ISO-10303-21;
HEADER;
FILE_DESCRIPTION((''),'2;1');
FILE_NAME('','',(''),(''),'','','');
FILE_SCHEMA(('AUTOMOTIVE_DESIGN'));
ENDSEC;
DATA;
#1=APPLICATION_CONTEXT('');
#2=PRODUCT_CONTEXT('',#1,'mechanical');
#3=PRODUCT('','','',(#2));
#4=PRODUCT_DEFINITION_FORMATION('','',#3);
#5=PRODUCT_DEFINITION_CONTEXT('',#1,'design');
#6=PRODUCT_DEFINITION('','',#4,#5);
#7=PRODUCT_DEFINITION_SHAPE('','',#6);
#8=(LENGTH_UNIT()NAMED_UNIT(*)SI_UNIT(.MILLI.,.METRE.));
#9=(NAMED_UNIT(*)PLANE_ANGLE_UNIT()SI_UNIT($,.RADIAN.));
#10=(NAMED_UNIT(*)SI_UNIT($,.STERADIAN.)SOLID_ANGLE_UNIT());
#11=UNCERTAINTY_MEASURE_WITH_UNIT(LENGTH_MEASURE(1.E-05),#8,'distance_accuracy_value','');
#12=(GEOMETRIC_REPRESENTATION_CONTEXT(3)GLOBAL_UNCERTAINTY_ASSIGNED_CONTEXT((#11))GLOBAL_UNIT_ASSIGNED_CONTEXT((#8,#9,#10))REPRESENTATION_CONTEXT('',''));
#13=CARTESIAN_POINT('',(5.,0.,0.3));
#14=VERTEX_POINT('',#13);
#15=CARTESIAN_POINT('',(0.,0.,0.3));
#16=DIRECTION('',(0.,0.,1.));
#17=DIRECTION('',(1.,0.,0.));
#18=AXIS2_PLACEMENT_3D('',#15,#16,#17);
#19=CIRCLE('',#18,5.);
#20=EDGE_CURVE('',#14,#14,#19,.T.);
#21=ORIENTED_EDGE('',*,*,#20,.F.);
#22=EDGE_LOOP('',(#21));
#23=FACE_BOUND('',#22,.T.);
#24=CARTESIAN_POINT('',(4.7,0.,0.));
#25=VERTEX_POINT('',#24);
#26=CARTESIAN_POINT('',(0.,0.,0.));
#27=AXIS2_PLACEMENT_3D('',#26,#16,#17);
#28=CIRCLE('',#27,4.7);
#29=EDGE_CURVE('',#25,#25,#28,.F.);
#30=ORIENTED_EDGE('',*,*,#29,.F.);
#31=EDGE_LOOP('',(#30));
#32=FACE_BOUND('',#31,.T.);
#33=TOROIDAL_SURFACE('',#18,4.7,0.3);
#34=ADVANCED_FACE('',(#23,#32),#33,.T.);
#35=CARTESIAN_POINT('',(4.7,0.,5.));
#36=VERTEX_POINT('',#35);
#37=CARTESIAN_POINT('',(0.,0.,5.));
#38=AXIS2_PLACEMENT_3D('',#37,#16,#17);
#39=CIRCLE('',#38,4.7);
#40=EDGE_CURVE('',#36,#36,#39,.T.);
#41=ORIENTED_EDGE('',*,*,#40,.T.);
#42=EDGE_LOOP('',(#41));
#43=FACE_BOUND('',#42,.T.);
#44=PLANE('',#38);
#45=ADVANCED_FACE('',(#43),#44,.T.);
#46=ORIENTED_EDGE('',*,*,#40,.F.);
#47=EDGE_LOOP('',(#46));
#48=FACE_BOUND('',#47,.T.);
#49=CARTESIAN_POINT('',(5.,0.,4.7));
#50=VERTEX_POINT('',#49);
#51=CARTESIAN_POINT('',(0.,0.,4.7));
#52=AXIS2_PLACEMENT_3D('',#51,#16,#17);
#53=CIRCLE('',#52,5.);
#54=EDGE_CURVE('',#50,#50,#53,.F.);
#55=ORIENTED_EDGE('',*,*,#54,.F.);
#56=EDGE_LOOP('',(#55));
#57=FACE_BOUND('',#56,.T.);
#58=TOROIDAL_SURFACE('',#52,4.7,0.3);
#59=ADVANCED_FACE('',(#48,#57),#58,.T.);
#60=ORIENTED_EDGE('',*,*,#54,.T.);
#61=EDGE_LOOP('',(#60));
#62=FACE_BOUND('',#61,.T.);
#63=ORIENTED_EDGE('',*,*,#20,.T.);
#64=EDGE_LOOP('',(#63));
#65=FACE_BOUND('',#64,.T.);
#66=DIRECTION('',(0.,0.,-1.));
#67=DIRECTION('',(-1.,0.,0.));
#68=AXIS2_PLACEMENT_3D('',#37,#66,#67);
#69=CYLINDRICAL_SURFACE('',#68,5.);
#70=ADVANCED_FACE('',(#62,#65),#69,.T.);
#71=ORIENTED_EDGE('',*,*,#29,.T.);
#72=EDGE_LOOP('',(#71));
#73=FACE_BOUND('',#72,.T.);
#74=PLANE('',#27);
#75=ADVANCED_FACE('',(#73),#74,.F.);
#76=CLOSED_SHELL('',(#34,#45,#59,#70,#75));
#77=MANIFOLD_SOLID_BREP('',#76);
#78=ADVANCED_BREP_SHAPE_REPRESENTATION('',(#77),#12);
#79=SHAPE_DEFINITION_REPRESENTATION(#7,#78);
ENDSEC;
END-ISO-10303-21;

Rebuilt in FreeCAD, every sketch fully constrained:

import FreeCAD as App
import Part
import Sketcher
from FreeCAD import Vector


def edges_at(feature, points):
    """Names of the edges that pass closest to the given points."""
    edges = feature.Shape.Edges
    near = lambda p: min(range(len(edges)), key=lambda i: edges[i].distToShape(Part.Vertex(*p))[0])
    return sorted({f"Edge{near(p) + 1}" for p in points})

doc = App.newDocument("Part")
body = doc.addObject("PartDesign::Body", "Body")

sketch1 = body.newObject("Sketcher::SketchObject", "Sketch")
sketch1.AttachmentSupport = (doc.getObject("XY_Plane"), [""])
sketch1.MapMode = "FlatFace"
sketch1.addGeometry(Part.Circle(Vector(0, 0, 0), Vector(0, 0, 1), 5), False)
sketch1.addConstraint([
    Sketcher.Constraint("Coincident", 0, 3, -1, 1),
    Sketcher.Constraint("Diameter", 0, 10.0),
])
pad1 = body.newObject("PartDesign::Pad", "Pad")
pad1.Profile = sketch1
pad1.Length = 5
doc.recompute()

fillet = body.newObject("PartDesign::Fillet", "Fillet")
fillet.Base = (pad1, edges_at(pad1, [(-5, 0, 0), (-5, 0, 5)]))
fillet.Radius = 0.3

doc.recompute()
